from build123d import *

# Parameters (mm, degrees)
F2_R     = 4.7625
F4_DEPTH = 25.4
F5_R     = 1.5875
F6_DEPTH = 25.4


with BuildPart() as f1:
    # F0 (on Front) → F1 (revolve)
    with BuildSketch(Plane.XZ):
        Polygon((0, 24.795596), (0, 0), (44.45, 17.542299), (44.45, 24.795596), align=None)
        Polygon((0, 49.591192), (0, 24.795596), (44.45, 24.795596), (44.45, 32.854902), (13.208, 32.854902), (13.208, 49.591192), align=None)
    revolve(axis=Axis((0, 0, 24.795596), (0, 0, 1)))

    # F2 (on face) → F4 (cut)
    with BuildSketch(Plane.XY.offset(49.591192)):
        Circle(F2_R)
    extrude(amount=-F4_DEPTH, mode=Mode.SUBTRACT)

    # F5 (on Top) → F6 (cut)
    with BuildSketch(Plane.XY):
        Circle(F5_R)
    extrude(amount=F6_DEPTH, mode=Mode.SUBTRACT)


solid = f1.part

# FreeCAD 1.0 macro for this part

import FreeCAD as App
import Part
import Sketcher

V = App.Vector
Q = App.Units.Quantity

doc = App.newDocument("Part")
params = doc.addObject("Spreadsheet::Sheet", "Params")
for row, (alias, value) in enumerate([
    ("sketch1_width", "1.23 in"),
    ("sketch1_width2", "0.52 in"),
    ("revolution_angle", "360 deg"),
    ("sketch2_diameter", "0.375 in"),
    ("pocket1_length", "1 in"),
    ("sketch3_diameter", "0.125 in"),
    ("pocket2_length", "1 in"),
], start=1):
    params.set(f"A{row}", alias)
    params.set(f"B{row}", "=" + value)
    params.setAlias(f"B{row}", alias)

body = doc.addObject("PartDesign::Body", "Body")

# Sketch on XZ plane
sketch1 = body.newObject("Sketcher::SketchObject", "Sketch")
sketch1.AttachmentSupport = (doc.getObject("XZ_Plane"), [""])
sketch1.MapMode = "FlatFace"
sketch1.addGeometry([
    Part.LineSegment(V(0, 0, 0), V(44, 18, 0)),  # 0
    Part.LineSegment(V(44, 18, 0), V(44, 33, 0)),  # 1
    Part.LineSegment(V(44, 33, 0), V(13, 33, 0)),  # 2
    Part.LineSegment(V(13, 33, 0), V(13, 50, 0)),  # 3
    Part.LineSegment(V(13, 50, 0), V(0, 50, 0)),  # 4
    Part.LineSegment(V(0, 50, 0), V(0, 0, 0)),  # 5
], False)
sketch1.addConstraint([
    Sketcher.Constraint("Coincident", 0, 2, 1, 1),
    Sketcher.Constraint("Coincident", 1, 2, 2, 1),
    Sketcher.Constraint("Coincident", 2, 2, 3, 1),
    Sketcher.Constraint("Coincident", 3, 2, 4, 1),
    Sketcher.Constraint("Coincident", 4, 2, 5, 1),
    Sketcher.Constraint("Coincident", 5, 2, 0, 1),
    Sketcher.Constraint("Vertical", 1),
    Sketcher.Constraint("Horizontal", 2),
    Sketcher.Constraint("Vertical", 3),
    Sketcher.Constraint("Horizontal", 4),
    Sketcher.Constraint("Vertical", 5),
    Sketcher.Constraint("Coincident", 5, 2, -1, 1),
    Sketcher.Constraint("DistanceX", 2, 2, 2, 1, Q("1.23 in")),
    Sketcher.Constraint("DistanceX", 4, 2, 4, 1, Q("0.52 in")),
    Sketcher.Constraint("DistanceY", -1, 1, 1, 2, Q("1.2935001 in")),
    Sketcher.Constraint("DistanceY", 3, 1, 3, 2, Q("16.73629 mm")),
    Sketcher.Constraint("DistanceY", -1, 1, 0, 2, Q("17.542299 mm")),
])
sketch1.setExpression("Constraints[12]", "Params.sketch1_width")
sketch1.setExpression("Constraints[13]", "Params.sketch1_width2")
revolution = body.newObject("PartDesign::Revolution", "Revolution")
revolution.Profile = sketch1
revolution.ReferenceAxis = (sketch1, ["V_Axis"])
revolution.setExpression("Angle", "Params.revolution_angle")

# Sketch on XY plane
sketch2 = body.newObject("Sketcher::SketchObject", "Sketch001")
sketch2.AttachmentSupport = (doc.getObject("XY_Plane"), [""])
sketch2.MapMode = "FlatFace"
sketch2.AttachmentOffset = App.Placement(V(0, 0, 49.591192), App.Rotation())
sketch2.addGeometry(Part.Circle(V(0, 0, 0), V(0, 0, 1), 4.8), False)
sketch2.addConstraint([
    Sketcher.Constraint("Coincident", 0, 3, -1, 1),
    Sketcher.Constraint("Diameter", 0, Q("0.375 in")),
])
sketch2.setExpression("Constraints[1]", "Params.sketch2_diameter")
pocket1 = body.newObject("PartDesign::Pocket", "Pocket")
pocket1.Profile = sketch2
pocket1.setExpression("Length", "Params.pocket1_length")

# Sketch on XY plane
sketch3 = body.newObject("Sketcher::SketchObject", "Sketch002")
sketch3.AttachmentSupport = (doc.getObject("XY_Plane"), [""])
sketch3.MapMode = "FlatFace"
sketch3.addGeometry(Part.Circle(V(0, 0, 0), V(0, 0, 1), 1.6), False)
sketch3.addConstraint([
    Sketcher.Constraint("Coincident", 0, 3, -1, 1),
    Sketcher.Constraint("Diameter", 0, Q("0.125 in")),
])
sketch3.setExpression("Constraints[1]", "Params.sketch3_diameter")
pocket2 = body.newObject("PartDesign::Pocket", "Pocket001")
pocket2.Profile = sketch3
pocket2.setExpression("Length", "Params.pocket2_length")
pocket2.Reversed = True

doc.recompute()
